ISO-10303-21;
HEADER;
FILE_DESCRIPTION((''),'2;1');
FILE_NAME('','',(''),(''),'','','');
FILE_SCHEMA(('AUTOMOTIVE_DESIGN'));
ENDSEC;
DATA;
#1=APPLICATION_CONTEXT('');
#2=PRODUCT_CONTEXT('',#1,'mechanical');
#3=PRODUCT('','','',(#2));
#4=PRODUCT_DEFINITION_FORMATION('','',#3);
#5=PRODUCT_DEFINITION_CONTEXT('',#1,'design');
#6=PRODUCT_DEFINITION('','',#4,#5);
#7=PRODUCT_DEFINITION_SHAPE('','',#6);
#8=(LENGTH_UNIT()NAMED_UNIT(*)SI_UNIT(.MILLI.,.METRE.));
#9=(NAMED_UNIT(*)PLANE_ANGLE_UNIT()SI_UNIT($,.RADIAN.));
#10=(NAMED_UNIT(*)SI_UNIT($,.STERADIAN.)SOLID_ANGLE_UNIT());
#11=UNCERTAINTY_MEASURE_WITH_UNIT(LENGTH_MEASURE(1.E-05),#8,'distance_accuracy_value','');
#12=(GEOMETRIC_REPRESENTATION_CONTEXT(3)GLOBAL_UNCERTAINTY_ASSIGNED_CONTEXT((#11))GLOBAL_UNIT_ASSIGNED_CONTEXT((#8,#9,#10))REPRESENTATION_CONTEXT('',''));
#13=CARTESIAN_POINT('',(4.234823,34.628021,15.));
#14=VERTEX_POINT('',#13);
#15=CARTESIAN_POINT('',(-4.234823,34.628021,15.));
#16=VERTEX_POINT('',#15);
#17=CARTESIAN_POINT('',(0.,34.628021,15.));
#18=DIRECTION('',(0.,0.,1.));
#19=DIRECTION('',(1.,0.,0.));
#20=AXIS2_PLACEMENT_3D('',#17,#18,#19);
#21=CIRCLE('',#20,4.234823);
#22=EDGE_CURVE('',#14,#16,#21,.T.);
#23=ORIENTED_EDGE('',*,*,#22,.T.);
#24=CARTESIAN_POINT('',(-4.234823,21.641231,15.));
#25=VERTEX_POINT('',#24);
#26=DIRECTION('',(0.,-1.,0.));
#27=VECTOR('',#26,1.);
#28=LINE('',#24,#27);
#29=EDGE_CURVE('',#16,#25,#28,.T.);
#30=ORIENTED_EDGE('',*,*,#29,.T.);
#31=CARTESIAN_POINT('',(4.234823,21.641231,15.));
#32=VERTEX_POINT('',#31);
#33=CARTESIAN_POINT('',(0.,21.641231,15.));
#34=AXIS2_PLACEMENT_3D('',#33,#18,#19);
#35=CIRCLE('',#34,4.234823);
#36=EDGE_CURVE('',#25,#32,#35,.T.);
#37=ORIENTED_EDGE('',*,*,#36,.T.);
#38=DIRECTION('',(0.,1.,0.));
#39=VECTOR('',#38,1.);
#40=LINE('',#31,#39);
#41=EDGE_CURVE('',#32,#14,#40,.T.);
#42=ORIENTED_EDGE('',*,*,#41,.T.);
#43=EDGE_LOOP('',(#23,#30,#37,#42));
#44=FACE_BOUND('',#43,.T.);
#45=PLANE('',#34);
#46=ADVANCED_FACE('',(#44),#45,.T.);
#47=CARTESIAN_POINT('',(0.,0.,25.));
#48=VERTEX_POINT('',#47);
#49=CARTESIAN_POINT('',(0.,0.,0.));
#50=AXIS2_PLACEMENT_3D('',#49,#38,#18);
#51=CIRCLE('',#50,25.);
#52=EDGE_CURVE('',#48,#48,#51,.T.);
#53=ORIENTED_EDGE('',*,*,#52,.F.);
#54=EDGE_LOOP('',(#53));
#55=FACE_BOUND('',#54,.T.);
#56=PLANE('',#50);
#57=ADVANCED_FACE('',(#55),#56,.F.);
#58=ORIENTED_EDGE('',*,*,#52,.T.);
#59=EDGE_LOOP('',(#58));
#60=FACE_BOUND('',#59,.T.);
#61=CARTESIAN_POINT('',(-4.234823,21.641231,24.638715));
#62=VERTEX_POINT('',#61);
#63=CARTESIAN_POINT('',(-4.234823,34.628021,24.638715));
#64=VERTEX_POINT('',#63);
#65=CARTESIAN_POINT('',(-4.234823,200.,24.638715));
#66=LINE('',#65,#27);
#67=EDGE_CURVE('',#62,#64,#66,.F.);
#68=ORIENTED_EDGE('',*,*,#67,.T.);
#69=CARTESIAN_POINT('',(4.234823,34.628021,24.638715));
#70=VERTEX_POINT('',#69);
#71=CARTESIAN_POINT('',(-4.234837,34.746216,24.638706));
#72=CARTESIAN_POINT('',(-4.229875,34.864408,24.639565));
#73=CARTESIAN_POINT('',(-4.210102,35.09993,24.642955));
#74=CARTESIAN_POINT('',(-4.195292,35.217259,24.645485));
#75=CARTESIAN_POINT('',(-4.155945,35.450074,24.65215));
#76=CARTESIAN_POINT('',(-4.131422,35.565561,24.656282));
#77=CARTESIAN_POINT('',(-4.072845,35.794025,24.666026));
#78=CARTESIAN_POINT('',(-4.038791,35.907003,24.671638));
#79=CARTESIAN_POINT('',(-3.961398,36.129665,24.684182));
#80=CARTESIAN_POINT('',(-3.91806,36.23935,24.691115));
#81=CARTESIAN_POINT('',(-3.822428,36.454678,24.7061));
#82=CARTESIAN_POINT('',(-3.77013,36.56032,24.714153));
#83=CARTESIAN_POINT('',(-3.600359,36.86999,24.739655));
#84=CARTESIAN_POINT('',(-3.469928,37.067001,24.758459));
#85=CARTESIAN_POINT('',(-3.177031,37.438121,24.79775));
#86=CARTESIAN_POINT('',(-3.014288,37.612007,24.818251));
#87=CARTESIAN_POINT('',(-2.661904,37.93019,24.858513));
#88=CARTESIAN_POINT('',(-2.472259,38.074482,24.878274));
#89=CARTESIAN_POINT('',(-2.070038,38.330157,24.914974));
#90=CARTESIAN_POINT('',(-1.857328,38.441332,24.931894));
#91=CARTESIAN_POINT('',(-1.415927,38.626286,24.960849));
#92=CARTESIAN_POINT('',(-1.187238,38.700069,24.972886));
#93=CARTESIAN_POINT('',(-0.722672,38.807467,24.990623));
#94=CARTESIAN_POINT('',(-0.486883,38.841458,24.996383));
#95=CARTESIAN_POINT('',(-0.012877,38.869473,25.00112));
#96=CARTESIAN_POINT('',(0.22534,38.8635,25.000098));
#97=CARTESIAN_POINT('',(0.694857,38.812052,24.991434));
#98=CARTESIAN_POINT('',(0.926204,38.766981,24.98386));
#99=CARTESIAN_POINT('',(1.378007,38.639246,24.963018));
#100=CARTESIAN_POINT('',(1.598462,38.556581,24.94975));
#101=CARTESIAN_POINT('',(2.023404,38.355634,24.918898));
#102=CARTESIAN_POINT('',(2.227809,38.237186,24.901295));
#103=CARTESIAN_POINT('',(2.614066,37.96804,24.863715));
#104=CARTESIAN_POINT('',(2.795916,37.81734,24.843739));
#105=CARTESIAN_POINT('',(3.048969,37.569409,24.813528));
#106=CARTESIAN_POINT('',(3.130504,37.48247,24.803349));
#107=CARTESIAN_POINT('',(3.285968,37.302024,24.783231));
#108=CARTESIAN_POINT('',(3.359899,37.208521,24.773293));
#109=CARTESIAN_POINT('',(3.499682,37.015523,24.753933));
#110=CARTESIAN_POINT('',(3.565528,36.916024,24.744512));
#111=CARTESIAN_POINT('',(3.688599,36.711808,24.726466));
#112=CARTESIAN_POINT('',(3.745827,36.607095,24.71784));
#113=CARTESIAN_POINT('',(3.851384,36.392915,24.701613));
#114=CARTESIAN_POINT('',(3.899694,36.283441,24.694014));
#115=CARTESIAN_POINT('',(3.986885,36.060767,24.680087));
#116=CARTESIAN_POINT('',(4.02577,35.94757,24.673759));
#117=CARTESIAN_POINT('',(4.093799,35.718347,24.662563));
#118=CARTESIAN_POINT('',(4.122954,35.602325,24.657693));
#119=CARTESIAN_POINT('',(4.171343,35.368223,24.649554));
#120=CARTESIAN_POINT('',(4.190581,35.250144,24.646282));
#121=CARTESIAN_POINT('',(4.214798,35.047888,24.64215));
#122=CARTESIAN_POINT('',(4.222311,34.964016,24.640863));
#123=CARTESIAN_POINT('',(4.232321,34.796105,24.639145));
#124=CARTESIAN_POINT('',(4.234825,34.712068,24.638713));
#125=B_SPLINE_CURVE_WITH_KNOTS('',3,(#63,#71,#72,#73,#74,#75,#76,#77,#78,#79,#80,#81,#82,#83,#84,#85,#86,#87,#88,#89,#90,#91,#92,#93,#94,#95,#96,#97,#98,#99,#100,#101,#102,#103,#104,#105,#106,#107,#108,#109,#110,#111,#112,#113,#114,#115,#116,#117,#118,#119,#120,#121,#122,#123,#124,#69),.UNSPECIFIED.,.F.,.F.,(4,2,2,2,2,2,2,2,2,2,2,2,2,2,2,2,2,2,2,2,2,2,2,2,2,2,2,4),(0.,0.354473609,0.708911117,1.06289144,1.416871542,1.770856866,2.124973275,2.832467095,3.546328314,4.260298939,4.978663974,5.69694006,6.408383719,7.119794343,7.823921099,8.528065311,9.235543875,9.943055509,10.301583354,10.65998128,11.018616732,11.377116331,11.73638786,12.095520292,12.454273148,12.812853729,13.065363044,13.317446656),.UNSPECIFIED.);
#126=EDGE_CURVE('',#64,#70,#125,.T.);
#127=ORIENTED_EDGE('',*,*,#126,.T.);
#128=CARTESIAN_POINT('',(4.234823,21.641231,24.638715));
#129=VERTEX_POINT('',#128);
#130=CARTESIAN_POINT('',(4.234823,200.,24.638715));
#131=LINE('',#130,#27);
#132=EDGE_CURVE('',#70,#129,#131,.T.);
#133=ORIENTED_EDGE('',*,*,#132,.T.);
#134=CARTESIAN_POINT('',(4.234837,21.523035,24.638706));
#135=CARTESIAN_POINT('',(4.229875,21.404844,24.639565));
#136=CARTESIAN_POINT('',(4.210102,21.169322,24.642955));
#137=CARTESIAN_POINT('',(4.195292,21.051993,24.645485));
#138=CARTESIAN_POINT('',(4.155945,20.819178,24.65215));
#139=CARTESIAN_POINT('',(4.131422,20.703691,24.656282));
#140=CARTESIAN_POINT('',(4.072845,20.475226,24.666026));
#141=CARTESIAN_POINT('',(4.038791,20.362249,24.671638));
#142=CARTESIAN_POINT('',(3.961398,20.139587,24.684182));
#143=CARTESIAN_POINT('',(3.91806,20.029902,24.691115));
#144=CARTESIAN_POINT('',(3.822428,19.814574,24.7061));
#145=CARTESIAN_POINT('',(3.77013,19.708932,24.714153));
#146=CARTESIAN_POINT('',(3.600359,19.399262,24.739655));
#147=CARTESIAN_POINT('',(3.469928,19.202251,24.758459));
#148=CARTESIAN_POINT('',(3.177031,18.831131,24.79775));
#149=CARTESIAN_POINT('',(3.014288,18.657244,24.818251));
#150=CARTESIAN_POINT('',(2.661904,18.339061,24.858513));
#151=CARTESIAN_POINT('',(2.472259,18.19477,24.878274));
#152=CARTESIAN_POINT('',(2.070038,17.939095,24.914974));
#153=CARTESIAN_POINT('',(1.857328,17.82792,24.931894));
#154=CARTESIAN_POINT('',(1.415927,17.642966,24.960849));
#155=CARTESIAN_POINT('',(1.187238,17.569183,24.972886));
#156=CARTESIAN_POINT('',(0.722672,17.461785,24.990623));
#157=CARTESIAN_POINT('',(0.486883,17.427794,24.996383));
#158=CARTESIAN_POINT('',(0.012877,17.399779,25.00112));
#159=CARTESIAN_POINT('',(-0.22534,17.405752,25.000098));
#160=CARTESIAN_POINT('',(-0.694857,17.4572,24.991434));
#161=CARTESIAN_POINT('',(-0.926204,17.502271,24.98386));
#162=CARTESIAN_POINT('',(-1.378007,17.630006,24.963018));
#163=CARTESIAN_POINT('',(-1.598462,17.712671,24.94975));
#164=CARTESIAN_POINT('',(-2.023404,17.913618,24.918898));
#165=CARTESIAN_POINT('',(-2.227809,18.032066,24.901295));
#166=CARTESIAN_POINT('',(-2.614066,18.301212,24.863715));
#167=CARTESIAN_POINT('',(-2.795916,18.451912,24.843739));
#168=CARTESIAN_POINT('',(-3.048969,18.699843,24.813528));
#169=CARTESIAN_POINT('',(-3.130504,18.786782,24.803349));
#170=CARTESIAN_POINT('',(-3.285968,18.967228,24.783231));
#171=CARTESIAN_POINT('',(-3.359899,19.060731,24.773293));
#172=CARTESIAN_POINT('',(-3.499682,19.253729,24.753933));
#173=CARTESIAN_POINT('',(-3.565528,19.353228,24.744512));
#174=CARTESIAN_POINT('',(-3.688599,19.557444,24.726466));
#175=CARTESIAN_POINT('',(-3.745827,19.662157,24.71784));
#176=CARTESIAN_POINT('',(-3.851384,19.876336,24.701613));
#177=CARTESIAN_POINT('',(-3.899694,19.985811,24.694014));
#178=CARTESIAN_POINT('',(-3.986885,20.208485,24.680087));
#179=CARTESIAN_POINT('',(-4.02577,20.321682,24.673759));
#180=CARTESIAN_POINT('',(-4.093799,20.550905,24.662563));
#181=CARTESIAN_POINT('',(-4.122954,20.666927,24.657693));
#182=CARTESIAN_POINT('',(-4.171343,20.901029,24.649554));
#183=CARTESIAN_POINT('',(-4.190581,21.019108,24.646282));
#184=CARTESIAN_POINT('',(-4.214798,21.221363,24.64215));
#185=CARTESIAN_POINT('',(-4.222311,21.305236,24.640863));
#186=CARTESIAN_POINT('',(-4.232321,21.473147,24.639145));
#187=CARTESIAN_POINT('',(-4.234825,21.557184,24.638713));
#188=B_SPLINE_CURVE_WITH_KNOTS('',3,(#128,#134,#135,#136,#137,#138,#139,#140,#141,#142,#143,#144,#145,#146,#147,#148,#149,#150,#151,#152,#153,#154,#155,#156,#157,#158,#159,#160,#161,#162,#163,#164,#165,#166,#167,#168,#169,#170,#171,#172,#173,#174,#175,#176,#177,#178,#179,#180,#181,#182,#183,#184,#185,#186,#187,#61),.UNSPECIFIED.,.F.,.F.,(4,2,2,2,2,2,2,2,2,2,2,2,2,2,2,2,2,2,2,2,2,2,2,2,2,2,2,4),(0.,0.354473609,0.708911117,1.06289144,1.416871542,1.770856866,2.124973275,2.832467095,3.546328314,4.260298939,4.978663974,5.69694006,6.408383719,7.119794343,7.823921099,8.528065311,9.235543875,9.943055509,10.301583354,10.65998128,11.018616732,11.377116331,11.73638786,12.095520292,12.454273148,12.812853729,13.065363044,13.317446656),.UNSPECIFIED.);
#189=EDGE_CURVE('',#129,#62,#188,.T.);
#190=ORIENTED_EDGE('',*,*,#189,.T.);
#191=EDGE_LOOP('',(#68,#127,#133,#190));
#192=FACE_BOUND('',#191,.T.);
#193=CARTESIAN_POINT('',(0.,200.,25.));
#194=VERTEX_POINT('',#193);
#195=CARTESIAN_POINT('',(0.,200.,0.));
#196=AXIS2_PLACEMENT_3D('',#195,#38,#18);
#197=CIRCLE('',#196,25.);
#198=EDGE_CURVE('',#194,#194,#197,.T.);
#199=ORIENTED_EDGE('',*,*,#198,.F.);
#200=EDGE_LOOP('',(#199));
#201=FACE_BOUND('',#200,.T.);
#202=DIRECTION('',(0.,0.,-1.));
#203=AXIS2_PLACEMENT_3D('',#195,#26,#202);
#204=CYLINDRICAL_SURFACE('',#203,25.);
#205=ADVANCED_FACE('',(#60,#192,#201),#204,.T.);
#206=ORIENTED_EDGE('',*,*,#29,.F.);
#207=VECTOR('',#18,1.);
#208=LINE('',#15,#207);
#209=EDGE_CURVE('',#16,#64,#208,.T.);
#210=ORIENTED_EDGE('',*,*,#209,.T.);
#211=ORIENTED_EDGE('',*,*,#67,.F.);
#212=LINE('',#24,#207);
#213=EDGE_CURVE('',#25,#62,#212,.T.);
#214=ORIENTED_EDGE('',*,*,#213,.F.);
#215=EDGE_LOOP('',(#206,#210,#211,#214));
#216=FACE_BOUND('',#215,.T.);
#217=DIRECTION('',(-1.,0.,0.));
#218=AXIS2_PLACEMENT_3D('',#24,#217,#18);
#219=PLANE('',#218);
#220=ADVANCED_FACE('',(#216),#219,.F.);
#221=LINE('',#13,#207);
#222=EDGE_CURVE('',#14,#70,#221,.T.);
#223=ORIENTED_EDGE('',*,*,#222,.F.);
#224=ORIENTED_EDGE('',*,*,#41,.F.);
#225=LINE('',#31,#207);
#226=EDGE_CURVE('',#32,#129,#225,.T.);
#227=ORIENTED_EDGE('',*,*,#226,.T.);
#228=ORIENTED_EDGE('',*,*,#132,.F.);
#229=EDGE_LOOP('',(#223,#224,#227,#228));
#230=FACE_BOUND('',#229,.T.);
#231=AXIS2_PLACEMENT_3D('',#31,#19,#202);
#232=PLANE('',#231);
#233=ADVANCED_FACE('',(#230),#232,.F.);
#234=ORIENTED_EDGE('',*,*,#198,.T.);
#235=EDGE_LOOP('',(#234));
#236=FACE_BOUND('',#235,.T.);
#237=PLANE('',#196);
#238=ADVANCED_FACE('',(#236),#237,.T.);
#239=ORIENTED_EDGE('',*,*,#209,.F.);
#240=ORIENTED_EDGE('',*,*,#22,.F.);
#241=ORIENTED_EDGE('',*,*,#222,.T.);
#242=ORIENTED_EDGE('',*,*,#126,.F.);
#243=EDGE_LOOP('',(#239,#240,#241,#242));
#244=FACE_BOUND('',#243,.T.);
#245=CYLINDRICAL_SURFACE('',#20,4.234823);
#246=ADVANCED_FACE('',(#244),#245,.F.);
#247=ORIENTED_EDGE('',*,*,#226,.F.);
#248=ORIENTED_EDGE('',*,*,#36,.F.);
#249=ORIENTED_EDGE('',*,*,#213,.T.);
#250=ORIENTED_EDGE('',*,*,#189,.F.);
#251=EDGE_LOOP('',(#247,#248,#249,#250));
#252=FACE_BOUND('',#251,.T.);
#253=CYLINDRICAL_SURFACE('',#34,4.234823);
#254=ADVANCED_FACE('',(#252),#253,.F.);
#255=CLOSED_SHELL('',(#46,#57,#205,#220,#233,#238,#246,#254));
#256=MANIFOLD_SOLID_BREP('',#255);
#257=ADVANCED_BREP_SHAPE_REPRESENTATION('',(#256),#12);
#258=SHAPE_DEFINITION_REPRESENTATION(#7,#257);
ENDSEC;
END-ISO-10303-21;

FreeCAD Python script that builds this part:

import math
import FreeCAD as App
import Part
import Sketcher

doc = App.newDocument("Part")
body = doc.addObject("PartDesign::Body", "Body")

# Sketch on XZ plane
sketch1 = body.newObject("Sketcher::SketchObject", "Sketch")
sketch1.AttachmentSupport = (doc.getObject("XZ_Plane"), [""])
sketch1.MapMode = "FlatFace"
sketch1.addGeometry(Part.Circle(App.Vector(0, 0, 0), App.Vector(0, 0, 1), 25), False)
sketch1.addConstraint([
    Sketcher.Constraint("Coincident", 0, 3, -1, 1),
    Sketcher.Constraint("Diameter", 0, 50.0),
])
pad1 = body.newObject("PartDesign::Pad", "Pad")
pad1.Profile = sketch1
pad1.Length = 200
pad1.Reversed = True

# Sketch on XY plane
sketch2 = body.newObject("Sketcher::SketchObject", "Sketch001")
sketch2.AttachmentSupport = (doc.getObject("XY_Plane"), [""])
sketch2.MapMode = "FlatFace"
sketch2.AttachmentOffset = App.Placement(App.Vector(0, 0, 25), App.Rotation())
sketch2.addGeometry([
    Part.LineSegment(App.Vector(-4.234823, 34.628021, 0), App.Vector(-4.234823, 21.641231, 0)),
    Part.ArcOfCircle(Part.Circle(App.Vector(0, 21.641231, 0), App.Vector(0, 0, 1), 4.234823), math.radians(180), math.radians(360)),
    Part.LineSegment(App.Vector(4.234823, 21.641231, 0), App.Vector(4.234823, 34.628021, 0)),
    Part.ArcOfCircle(Part.Circle(App.Vector(0, 34.628021, 0), App.Vector(0, 0, 1), 4.234823), math.radians(0), math.radians(180)),
], False)
sketch2.addConstraint([
    Sketcher.Constraint("Tangent", 0, 2, 1, 1),
    Sketcher.Constraint("Tangent", 1, 2, 2, 1),
    Sketcher.Constraint("Tangent", 2, 2, 3, 1),
    Sketcher.Constraint("Tangent", 3, 2, 0, 1),
    Sketcher.Constraint("Vertical", 0),
    Sketcher.Constraint("Vertical", 2),
    Sketcher.Constraint("PointOnObject", 1, 3, -2),
    Sketcher.Constraint("Radius", 1, 4.234823),
    Sketcher.Constraint("DistanceY", 0, 2, 0, 1, 12.98679),
    Sketcher.Constraint("DistanceY", -1, 1, 1, 3, 21.641231),
])
pocket1 = body.newObject("PartDesign::Pocket", "Pocket")
pocket1.Profile = sketch2
pocket1.Length = 10

doc.recompute()
